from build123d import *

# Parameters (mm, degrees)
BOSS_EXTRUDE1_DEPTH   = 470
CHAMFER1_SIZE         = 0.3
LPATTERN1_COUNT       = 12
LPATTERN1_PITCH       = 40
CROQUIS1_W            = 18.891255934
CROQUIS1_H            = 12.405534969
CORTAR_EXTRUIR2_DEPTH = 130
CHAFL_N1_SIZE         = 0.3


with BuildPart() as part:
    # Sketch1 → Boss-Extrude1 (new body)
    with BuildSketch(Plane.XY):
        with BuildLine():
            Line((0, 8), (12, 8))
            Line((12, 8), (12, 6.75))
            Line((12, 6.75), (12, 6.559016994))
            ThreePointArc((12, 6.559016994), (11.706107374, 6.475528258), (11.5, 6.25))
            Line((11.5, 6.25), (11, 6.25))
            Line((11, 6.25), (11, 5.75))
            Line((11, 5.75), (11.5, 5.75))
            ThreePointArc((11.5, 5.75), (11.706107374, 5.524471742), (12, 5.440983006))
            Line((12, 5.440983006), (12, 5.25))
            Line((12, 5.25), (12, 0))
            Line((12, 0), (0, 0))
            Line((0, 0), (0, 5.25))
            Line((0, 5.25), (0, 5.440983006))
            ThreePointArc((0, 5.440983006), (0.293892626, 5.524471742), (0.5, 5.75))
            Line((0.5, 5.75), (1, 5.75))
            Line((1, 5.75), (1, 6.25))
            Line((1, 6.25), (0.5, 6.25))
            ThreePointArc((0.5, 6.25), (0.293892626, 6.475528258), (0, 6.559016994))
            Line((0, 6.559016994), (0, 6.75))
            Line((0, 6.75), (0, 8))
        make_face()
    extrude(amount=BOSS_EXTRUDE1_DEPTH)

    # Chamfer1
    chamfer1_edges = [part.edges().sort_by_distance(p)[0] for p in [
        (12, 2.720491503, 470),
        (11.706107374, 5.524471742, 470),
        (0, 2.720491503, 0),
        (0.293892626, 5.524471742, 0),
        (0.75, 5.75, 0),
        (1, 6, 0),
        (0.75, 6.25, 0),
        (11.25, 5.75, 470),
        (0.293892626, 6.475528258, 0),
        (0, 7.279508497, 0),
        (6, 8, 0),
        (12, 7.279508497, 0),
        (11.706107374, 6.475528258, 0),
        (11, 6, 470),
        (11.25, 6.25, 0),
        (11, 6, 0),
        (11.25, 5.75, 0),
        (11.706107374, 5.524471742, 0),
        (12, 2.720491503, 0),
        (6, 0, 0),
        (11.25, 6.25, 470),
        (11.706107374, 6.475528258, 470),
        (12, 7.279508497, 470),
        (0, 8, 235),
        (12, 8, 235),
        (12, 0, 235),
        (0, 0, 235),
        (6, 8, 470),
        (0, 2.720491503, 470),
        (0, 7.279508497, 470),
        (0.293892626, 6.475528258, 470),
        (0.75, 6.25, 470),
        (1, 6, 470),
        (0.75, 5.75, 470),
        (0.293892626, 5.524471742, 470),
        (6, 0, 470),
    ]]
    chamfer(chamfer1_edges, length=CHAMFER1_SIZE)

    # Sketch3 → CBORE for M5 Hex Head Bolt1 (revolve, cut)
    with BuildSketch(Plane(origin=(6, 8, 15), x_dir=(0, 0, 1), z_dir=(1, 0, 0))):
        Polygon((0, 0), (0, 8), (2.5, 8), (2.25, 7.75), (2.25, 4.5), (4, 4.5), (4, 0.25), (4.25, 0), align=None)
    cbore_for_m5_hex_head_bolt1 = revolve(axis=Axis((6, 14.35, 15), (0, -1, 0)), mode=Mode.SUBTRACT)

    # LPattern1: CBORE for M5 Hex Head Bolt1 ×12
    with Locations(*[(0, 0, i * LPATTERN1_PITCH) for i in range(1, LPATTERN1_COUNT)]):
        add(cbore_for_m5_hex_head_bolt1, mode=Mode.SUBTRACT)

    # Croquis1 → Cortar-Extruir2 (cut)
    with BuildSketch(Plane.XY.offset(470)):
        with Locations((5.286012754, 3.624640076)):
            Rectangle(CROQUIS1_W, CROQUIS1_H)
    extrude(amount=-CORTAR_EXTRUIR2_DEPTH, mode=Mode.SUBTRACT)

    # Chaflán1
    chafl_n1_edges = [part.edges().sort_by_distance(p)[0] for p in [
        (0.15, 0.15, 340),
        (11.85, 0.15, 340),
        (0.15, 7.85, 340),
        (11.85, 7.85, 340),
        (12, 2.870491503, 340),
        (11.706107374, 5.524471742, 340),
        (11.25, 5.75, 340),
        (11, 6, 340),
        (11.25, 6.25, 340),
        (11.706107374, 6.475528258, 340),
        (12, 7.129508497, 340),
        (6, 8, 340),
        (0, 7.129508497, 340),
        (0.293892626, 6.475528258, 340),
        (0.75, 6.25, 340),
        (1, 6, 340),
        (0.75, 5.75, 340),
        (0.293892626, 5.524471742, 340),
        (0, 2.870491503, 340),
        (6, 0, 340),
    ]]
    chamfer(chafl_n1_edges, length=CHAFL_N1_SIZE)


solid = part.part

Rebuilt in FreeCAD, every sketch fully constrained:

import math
import FreeCAD as App
import Part
import Sketcher

V = App.Vector
Q = App.Units.Quantity


def edges_at(feature, points):
    """Names of the edges that pass closest to the given points."""
    edges = feature.Shape.Edges
    near = lambda p: min(range(len(edges)), key=lambda i: edges[i].distToShape(Part.Vertex(*p))[0])
    return sorted({f"Edge{near(p) + 1}" for p in points})


def add_polygon(sketch, points):
    """Adds a closed chain of lines whose ends are joined by coincident constraints."""
    first, n = sketch.GeometryCount, len(points)
    for a, b in zip(points, points[1:] + points[:1]):
        sketch.addGeometry(Part.LineSegment(App.Vector(*a, 0), App.Vector(*b, 0)), False)
    for i in range(n):
        sketch.addConstraint(Sketcher.Constraint("Coincident", first + i, 2, first + (i + 1) % n, 1))

doc = App.newDocument("Part")
body = doc.addObject("PartDesign::Body", "Body")

sketch1 = body.newObject("Sketcher::SketchObject", "Sketch")
sketch1.AttachmentSupport = (doc.getObject("XY_Plane"), [""])
sketch1.MapMode = "FlatFace"
sketch1.addGeometry([
    Part.LineSegment(V(12, 8, 0), V(0, 8, 0)),
    Part.LineSegment(V(0, 8, 0), V(0, 6.559017, 0)),
    Part.ArcOfCircle(Part.Circle(V(0, 6, 0), V(0, 0, 1), 0.559017), math.radians(26.565051), math.radians(90)),
    Part.LineSegment(V(0.5, 6.25, 0), V(1, 6.25, 0)),
    Part.LineSegment(V(1, 6.25, 0), V(1, 5.75, 0)),
    Part.LineSegment(V(1, 5.75, 0), V(0.5, 5.75, 0)),
    Part.ArcOfCircle(Part.Circle(V(0, 6, 0), V(0, 0, 1), 0.559017), math.radians(-90), math.radians(-26.565051)),
    Part.LineSegment(V(0, 5.440983, 0), V(0, 0, 0)),
    Part.LineSegment(V(0, 0, 0), V(12, 0, 0)),
    Part.LineSegment(V(12, 0, 0), V(12, 5.440983, 0)),
    Part.ArcOfCircle(Part.Circle(V(12, 6, 0), V(0, 0, 1), 0.559017), math.radians(-153.434949), math.radians(-90)),
    Part.LineSegment(V(11.5, 5.75, 0), V(11, 5.75, 0)),
    Part.LineSegment(V(11, 5.75, 0), V(11, 6.25, 0)),
    Part.LineSegment(V(11, 6.25, 0), V(11.5, 6.25, 0)),
    Part.ArcOfCircle(Part.Circle(V(12, 6, 0), V(0, 0, 1), 0.559017), math.radians(90), math.radians(153.434949)),
    Part.LineSegment(V(12, 6.559017, 0), V(12, 8, 0)),
], False)
sketch1.addConstraint([
    Sketcher.Constraint("Coincident", 0, 2, 1, 1),
    Sketcher.Constraint("Coincident", 1, 2, 2, 2),
    Sketcher.Constraint("Coincident", 2, 1, 3, 1),
    Sketcher.Constraint("Coincident", 3, 2, 4, 1),
    Sketcher.Constraint("Coincident", 4, 2, 5, 1),
    Sketcher.Constraint("Coincident", 5, 2, 6, 2),
    Sketcher.Constraint("Coincident", 6, 1, 7, 1),
    Sketcher.Constraint("Coincident", 7, 2, 8, 1),
    Sketcher.Constraint("Coincident", 8, 2, 9, 1),
    Sketcher.Constraint("Coincident", 9, 2, 10, 2),
    Sketcher.Constraint("Coincident", 10, 1, 11, 1),
    Sketcher.Constraint("Coincident", 11, 2, 12, 1),
    Sketcher.Constraint("Coincident", 12, 2, 13, 1),
    Sketcher.Constraint("Coincident", 13, 2, 14, 2),
    Sketcher.Constraint("Coincident", 14, 1, 15, 1),
    Sketcher.Constraint("Coincident", 15, 2, 0, 1),
    Sketcher.Constraint("Horizontal", 0),
    Sketcher.Constraint("Vertical", 1),
    Sketcher.Constraint("Horizontal", 3),
    Sketcher.Constraint("Vertical", 4),
    Sketcher.Constraint("Horizontal", 5),
    Sketcher.Constraint("Vertical", 7),
    Sketcher.Constraint("Horizontal", 8),
    Sketcher.Constraint("Vertical", 9),
    Sketcher.Constraint("Horizontal", 11),
    Sketcher.Constraint("Vertical", 12),
    Sketcher.Constraint("Horizontal", 13),
    Sketcher.Constraint("Vertical", 15),
    Sketcher.Constraint("Coincident", 7, 2, -1, 1),
    Sketcher.Constraint("Coincident", 6, 3, 2, 3),
    Sketcher.Constraint("Coincident", 14, 3, 10, 3),
    Sketcher.Constraint("Equal", 2, 6),
    Sketcher.Constraint("Equal", 6, 10),
    Sketcher.Constraint("Equal", 10, 14),
    Sketcher.Constraint("PointOnObject", 2, 3, -2),
    Sketcher.Constraint("PointOnObject", 0, 2, -2),
    Sketcher.Constraint("Horizontal", 6, 3, 10, 3),
    Sketcher.Constraint("Horizontal", 5, 2, 10, 1),
    Sketcher.Constraint("Horizontal", 3, 2, 12, 2),
    Sketcher.Constraint("Vertical", 2, 1, 5, 2),
    Sketcher.Constraint("Vertical", 14, 3, 8, 2),
    Sketcher.Constraint("Vertical", 9, 2, 14, 1),
    Sketcher.Constraint("Equal", 5, 11),
    Sketcher.Constraint("Equal", 13, 4),
    Sketcher.Constraint("DistanceX", 0, 2, 0, 1, 12.0),
    Sketcher.Constraint("DistanceX", 3, 1, 3, 2, 0.5),
    Sketcher.Constraint("DistanceY", -1, 1, 2, 3, 6.0),
    Sketcher.Constraint("DistanceY", -1, 1, 0, 2, 8.0),
    Sketcher.Constraint("DistanceX", -1, 1, 3, 2, 1.0),
])
pad1 = body.newObject("PartDesign::Pad", "Pad")
pad1.Profile = sketch1
pad1.Length = 470
doc.recompute()

chamfer = body.newObject("PartDesign::Chamfer", "Chamfer")
chamfer.Base = (pad1, edges_at(pad1, [
    (12, 2.72, 470),
    (11.706, 5.524, 470),
    (0, 2.72, 0),
    (0.294, 5.524, 0),
    (0.75, 5.75, 0),
    (1, 6, 0),
    (0.75, 6.25, 0),
    (11.25, 5.75, 470),
    (0.294, 6.476, 0),
    (0, 7.28, 0),
    (6, 8, 0),
    (12, 7.28, 0),
    (11.706, 6.476, 0),
    (11, 6, 470),
    (11.25, 6.25, 0),
    (11, 6, 0),
    (11.25, 5.75, 0),
    (11.706, 5.524, 0),
    (12, 2.72, 0),
    (6, 0, 0),
    (11.25, 6.25, 470),
    (11.706, 6.476, 470),
    (12, 7.28, 470),
    (0, 8, 235),
    (12, 8, 235),
    (12, 0, 235),
    (0, 0, 235),
    (6, 8, 470),
    (0, 2.72, 470),
    (0, 7.28, 470),
    (0.294, 6.476, 470),
    (0.75, 6.25, 470),
    (1, 6, 470),
    (0.75, 5.75, 470),
    (0.294, 5.524, 470),
    (6, 0, 470),
]))
chamfer.Size = 0.3

sketch2 = body.newObject("Sketcher::SketchObject", "Sketch001")
sketch2.AttachmentSupport = (doc.getObject("YZ_Plane"), [""])
sketch2.MapMode = "FlatFace"
sketch2.AttachmentOffset = App.Placement(V(0, 0, 6), App.Rotation())
add_polygon(sketch2, [(0, 15), (8, 15), (8, 19.25), (7.75, 19), (3.5, 19), (3.5, 17.25), (0.25, 17.25), (0, 17.5)])
sketch2.addGeometry(Part.LineSegment(V(8, 15, 0), V(0, 15, 0)), True)
sketch2.addConstraint([
    Sketcher.Constraint("Horizontal", 0),
    Sketcher.Constraint("Vertical", 1),
    Sketcher.Constraint("Horizontal", 3),
    Sketcher.Constraint("Vertical", 4),
    Sketcher.Constraint("Horizontal", 5),
    Sketcher.Constraint("Vertical", 7),
    Sketcher.Constraint("Horizontal", 8),
    Sketcher.Constraint("Coincident", 8, 1, 0, 2),
    Sketcher.Constraint("PointOnObject", 6, 2, -2),
    Sketcher.Constraint("PointOnObject", 8, 2, -2),
    Sketcher.Constraint("Perpendicular", 2, 6),
    Sketcher.Constraint("Equal", 3, 1),
    Sketcher.Constraint("Equal", 2, 6),
    Sketcher.Constraint("DistanceX", 0, 1, 0, 2, 8.0),
    Sketcher.Constraint("Angle", 2, Q("-135 deg")),
    Sketcher.Constraint("DistanceY", 7, 2, 7, 1, 2.5),
    Sketcher.Constraint("DistanceY", -1, 1, 0, 2, 15.0),
    Sketcher.Constraint("DistanceY", -1, 1, 2, 2, 19.0),
    Sketcher.Constraint("DistanceY", 4, 2, 1, 2, 2.0),
])
groove = body.newObject("PartDesign::Groove", "Groove")
groove.Profile = sketch2
groove.ReferenceAxis = (sketch2, ["Axis0"])
groove.Angle = 360
doc.recompute()

linearpattern = body.newObject("PartDesign::LinearPattern", "LinearPattern")
linearpattern.Originals = [groove]
linearpattern.Direction = (doc.getObject("Z_Axis"), [""])
linearpattern.Mode = "offset"
linearpattern.Offset = 40
linearpattern.Occurrences = 12
body.Tip = linearpattern

sketch3 = body.newObject("Sketcher::SketchObject", "Sketch002")
sketch3.AttachmentSupport = (doc.getObject("XY_Plane"), [""])
sketch3.MapMode = "FlatFace"
sketch3.AttachmentOffset = App.Placement(V(0, 0, 470), App.Rotation())
add_polygon(sketch3, [(-4.159615, 9.827408), (-4.159615, -2.578127), (14.731641, -2.578127), (14.731641, 9.827408)])
sketch3.addConstraint([
    Sketcher.Constraint("Vertical", 0),
    Sketcher.Constraint("Horizontal", 1),
    Sketcher.Constraint("Vertical", 2),
    Sketcher.Constraint("Horizontal", 3),
    Sketcher.Constraint("DistanceX", 1, 1, 1, 2, 18.891256),
    Sketcher.Constraint("DistanceY", 0, 2, 0, 1, 12.405535),
    Sketcher.Constraint("DistanceX", -1, 1, 1, 2, 14.731641),
    Sketcher.Constraint("DistanceY", 0, 2, -1, 1, 2.578127),
])
pocket1 = body.newObject("PartDesign::Pocket", "Pocket")
pocket1.Profile = sketch3
pocket1.Length = 130
doc.recompute()

chamfer2 = body.newObject("PartDesign::Chamfer", "Chamfer001")
chamfer2.Base = (pocket1, edges_at(pocket1, [
    (0.15, 0.15, 340),
    (11.85, 0.15, 340),
    (0.15, 7.85, 340),
    (11.85, 7.85, 340),
    (12, 2.87, 340),
    (11.706, 5.524, 340),
    (11.25, 5.75, 340),
    (11, 6, 340),
    (11.25, 6.25, 340),
    (11.706, 6.476, 340),
    (12, 7.13, 340),
    (6, 8, 340),
    (0, 7.13, 340),
    (0.294, 6.476, 340),
    (0.75, 6.25, 340),
    (1, 6, 340),
    (0.75, 5.75, 340),
    (0.294, 5.524, 340),
    (0, 2.87, 340),
    (6, 0, 340),
]))
chamfer2.Size = 0.3

doc.recompute()
